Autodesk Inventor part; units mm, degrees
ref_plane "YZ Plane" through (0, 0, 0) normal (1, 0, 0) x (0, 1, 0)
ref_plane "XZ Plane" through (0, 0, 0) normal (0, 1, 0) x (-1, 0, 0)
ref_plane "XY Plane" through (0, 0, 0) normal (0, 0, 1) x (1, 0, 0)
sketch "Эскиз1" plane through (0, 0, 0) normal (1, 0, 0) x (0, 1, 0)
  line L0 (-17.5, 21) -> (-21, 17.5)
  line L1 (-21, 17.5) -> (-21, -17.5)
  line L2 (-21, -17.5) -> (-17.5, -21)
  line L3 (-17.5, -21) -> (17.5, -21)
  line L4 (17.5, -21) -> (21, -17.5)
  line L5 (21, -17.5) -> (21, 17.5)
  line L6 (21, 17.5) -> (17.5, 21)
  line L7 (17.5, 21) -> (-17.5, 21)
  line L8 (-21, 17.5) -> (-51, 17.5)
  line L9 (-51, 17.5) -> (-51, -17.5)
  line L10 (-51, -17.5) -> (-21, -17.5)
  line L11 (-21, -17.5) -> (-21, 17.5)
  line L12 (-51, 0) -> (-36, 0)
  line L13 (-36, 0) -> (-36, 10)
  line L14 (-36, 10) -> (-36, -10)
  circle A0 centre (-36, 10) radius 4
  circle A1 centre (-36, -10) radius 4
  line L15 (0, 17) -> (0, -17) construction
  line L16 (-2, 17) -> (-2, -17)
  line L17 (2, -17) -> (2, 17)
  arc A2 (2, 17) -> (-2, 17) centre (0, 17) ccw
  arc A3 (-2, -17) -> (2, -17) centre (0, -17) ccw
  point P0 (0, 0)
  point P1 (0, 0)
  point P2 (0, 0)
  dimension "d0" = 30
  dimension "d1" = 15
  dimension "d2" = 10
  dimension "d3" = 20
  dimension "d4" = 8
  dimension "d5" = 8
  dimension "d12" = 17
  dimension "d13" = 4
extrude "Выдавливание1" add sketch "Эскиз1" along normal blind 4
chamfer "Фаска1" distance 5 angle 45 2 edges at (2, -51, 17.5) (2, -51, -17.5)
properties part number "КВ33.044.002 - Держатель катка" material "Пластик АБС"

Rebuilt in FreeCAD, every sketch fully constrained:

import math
import FreeCAD as App
import Part
import Sketcher
from FreeCAD import Vector


def edges_at(feature, points):
    """Names of the edges that pass closest to the given points."""
    edges = feature.Shape.Edges
    near = lambda p: min(range(len(edges)), key=lambda i: edges[i].distToShape(Part.Vertex(*p))[0])
    return sorted({f"Edge{near(p) + 1}" for p in points})


def add_polygon(sketch, points):
    """Adds a closed chain of lines whose ends are joined by coincident constraints."""
    first, n = sketch.GeometryCount, len(points)
    for a, b in zip(points, points[1:] + points[:1]):
        sketch.addGeometry(Part.LineSegment(App.Vector(*a, 0), App.Vector(*b, 0)), False)
    for i in range(n):
        sketch.addConstraint(Sketcher.Constraint("Coincident", first + i, 2, first + (i + 1) % n, 1))

doc = App.newDocument("Part")
body = doc.addObject("PartDesign::Body", "Body")

sketch1 = doc.addObject("Sketcher::SketchObject", "Sketch")
body.addObject(sketch1)
sketch1.AttachmentSupport = (doc.YZ_Plane, [""])
sketch1.MapMode = "FlatFace"
add_polygon(sketch1, [(17.5, 21), (-17.5, 21), (-21, 17.5), (-51, 17.5), (-51, 0), (-51, -17.5), (-21, -17.5), (-17.5, -21), (17.5, -21), (21, -17.5), (21, 17.5)])
sketch1.addGeometry(Part.LineSegment(Vector(-2, -17, 0), Vector(-2, 17, 0)), False)
sketch1.addGeometry(Part.ArcOfCircle(Part.Circle(Vector(0, 17, 0), Vector(0, 0, 1), 2), math.radians(0), math.radians(180)), False)
sketch1.addGeometry(Part.LineSegment(Vector(2, 17, 0), Vector(2, -17, 0)), False)
sketch1.addGeometry(Part.ArcOfCircle(Part.Circle(Vector(0, -17, 0), Vector(0, 0, 1), 2), math.radians(180), math.radians(360)), False)
sketch1.addGeometry(Part.Circle(Vector(-36, -10, 0), Vector(0, 0, 1), 4), False)
sketch1.addGeometry(Part.Circle(Vector(-36, 10, 0), Vector(0, 0, 1), 4), False)
sketch1.addConstraint(Sketcher.Constraint("Tangent", 11, 2, 12, 2))
sketch1.addConstraint(Sketcher.Constraint("Tangent", 12, 1, 13, 1))
sketch1.addConstraint(Sketcher.Constraint("Tangent", 13, 2, 14, 2))
sketch1.addConstraint(Sketcher.Constraint("Tangent", 14, 1, 11, 1))
sketch1.addConstraint(Sketcher.Constraint("Horizontal", 0))
sketch1.addConstraint(Sketcher.Constraint("Horizontal", 2))
sketch1.addConstraint(Sketcher.Constraint("Vertical", 3))
sketch1.addConstraint(Sketcher.Constraint("Vertical", 4))
sketch1.addConstraint(Sketcher.Constraint("Horizontal", 5))
sketch1.addConstraint(Sketcher.Constraint("Horizontal", 7))
sketch1.addConstraint(Sketcher.Constraint("Vertical", 9))
sketch1.addConstraint(Sketcher.Constraint("Vertical", 11))
sketch1.addConstraint(Sketcher.Constraint("Vertical", 13))
sketch1.addConstraint(Sketcher.Constraint("Equal", 15, 16))
sketch1.addConstraint(Sketcher.Constraint("Symmetric", 12, 3, 14, 3, -1, 1))
sketch1.addConstraint(Sketcher.Constraint("Symmetric", 0, 2, 7, 2, -1, 1))
sketch1.addConstraint(Sketcher.Constraint("Symmetric", 1, 2, 8, 2, -1, 1))
sketch1.addConstraint(Sketcher.Constraint("Symmetric", 5, 2, 9, 2, -1, 1))
sketch1.addConstraint(Sketcher.Constraint("Symmetric", 15, 3, 16, 3, -1))
sketch1.addConstraint(Sketcher.Constraint("PointOnObject", 3, 2, -1))
sketch1.addConstraint(Sketcher.Constraint("Perpendicular", 1, 6))
sketch1.addConstraint(Sketcher.Constraint("Perpendicular", 8, 10))
sketch1.addConstraint(Sketcher.Constraint("Horizontal", 5, 2, 8, 2))
sketch1.addConstraint(Sketcher.Constraint("Vertical", 0, 2, 6, 2))
sketch1.addConstraint(Sketcher.Constraint("Equal", 7, 9))
sketch1.addConstraint(Sketcher.Constraint("Diameter", 15, 8.0))
sketch1.addConstraint(Sketcher.Constraint("Radius", 12, 2.0))
sketch1.addConstraint(Sketcher.Constraint("DistanceX", 2, 2, 2, 1, 30.0))
sketch1.addConstraint(Sketcher.Constraint("DistanceY", -1, 1, 12, 3, 17.0))
sketch1.addConstraint(Sketcher.Constraint("DistanceY", 15, 3, -1, 1, 10.0))
sketch1.addConstraint(Sketcher.Constraint("DistanceY", 12, 3, 0, 2, 4.0))
sketch1.addConstraint(Sketcher.Constraint("DistanceX", 16, 3, 1, 2, 15.0))
sketch1.addConstraint(Sketcher.Constraint("DistanceX", 0, 2, 0, 1, 35.0))
pad1 = doc.addObject("PartDesign::Pad", "Pad")
body.addObject(pad1)
pad1.Profile = sketch1
pad1.Length = 4
doc.recompute()

chamfer = doc.addObject("PartDesign::Chamfer", "Chamfer")
body.addObject(chamfer)
chamfer.Base = (pad1, edges_at(pad1, [(2, -51, 17.5), (2, -51, -17.5)]))
chamfer.Size = 5

doc.recompute()
